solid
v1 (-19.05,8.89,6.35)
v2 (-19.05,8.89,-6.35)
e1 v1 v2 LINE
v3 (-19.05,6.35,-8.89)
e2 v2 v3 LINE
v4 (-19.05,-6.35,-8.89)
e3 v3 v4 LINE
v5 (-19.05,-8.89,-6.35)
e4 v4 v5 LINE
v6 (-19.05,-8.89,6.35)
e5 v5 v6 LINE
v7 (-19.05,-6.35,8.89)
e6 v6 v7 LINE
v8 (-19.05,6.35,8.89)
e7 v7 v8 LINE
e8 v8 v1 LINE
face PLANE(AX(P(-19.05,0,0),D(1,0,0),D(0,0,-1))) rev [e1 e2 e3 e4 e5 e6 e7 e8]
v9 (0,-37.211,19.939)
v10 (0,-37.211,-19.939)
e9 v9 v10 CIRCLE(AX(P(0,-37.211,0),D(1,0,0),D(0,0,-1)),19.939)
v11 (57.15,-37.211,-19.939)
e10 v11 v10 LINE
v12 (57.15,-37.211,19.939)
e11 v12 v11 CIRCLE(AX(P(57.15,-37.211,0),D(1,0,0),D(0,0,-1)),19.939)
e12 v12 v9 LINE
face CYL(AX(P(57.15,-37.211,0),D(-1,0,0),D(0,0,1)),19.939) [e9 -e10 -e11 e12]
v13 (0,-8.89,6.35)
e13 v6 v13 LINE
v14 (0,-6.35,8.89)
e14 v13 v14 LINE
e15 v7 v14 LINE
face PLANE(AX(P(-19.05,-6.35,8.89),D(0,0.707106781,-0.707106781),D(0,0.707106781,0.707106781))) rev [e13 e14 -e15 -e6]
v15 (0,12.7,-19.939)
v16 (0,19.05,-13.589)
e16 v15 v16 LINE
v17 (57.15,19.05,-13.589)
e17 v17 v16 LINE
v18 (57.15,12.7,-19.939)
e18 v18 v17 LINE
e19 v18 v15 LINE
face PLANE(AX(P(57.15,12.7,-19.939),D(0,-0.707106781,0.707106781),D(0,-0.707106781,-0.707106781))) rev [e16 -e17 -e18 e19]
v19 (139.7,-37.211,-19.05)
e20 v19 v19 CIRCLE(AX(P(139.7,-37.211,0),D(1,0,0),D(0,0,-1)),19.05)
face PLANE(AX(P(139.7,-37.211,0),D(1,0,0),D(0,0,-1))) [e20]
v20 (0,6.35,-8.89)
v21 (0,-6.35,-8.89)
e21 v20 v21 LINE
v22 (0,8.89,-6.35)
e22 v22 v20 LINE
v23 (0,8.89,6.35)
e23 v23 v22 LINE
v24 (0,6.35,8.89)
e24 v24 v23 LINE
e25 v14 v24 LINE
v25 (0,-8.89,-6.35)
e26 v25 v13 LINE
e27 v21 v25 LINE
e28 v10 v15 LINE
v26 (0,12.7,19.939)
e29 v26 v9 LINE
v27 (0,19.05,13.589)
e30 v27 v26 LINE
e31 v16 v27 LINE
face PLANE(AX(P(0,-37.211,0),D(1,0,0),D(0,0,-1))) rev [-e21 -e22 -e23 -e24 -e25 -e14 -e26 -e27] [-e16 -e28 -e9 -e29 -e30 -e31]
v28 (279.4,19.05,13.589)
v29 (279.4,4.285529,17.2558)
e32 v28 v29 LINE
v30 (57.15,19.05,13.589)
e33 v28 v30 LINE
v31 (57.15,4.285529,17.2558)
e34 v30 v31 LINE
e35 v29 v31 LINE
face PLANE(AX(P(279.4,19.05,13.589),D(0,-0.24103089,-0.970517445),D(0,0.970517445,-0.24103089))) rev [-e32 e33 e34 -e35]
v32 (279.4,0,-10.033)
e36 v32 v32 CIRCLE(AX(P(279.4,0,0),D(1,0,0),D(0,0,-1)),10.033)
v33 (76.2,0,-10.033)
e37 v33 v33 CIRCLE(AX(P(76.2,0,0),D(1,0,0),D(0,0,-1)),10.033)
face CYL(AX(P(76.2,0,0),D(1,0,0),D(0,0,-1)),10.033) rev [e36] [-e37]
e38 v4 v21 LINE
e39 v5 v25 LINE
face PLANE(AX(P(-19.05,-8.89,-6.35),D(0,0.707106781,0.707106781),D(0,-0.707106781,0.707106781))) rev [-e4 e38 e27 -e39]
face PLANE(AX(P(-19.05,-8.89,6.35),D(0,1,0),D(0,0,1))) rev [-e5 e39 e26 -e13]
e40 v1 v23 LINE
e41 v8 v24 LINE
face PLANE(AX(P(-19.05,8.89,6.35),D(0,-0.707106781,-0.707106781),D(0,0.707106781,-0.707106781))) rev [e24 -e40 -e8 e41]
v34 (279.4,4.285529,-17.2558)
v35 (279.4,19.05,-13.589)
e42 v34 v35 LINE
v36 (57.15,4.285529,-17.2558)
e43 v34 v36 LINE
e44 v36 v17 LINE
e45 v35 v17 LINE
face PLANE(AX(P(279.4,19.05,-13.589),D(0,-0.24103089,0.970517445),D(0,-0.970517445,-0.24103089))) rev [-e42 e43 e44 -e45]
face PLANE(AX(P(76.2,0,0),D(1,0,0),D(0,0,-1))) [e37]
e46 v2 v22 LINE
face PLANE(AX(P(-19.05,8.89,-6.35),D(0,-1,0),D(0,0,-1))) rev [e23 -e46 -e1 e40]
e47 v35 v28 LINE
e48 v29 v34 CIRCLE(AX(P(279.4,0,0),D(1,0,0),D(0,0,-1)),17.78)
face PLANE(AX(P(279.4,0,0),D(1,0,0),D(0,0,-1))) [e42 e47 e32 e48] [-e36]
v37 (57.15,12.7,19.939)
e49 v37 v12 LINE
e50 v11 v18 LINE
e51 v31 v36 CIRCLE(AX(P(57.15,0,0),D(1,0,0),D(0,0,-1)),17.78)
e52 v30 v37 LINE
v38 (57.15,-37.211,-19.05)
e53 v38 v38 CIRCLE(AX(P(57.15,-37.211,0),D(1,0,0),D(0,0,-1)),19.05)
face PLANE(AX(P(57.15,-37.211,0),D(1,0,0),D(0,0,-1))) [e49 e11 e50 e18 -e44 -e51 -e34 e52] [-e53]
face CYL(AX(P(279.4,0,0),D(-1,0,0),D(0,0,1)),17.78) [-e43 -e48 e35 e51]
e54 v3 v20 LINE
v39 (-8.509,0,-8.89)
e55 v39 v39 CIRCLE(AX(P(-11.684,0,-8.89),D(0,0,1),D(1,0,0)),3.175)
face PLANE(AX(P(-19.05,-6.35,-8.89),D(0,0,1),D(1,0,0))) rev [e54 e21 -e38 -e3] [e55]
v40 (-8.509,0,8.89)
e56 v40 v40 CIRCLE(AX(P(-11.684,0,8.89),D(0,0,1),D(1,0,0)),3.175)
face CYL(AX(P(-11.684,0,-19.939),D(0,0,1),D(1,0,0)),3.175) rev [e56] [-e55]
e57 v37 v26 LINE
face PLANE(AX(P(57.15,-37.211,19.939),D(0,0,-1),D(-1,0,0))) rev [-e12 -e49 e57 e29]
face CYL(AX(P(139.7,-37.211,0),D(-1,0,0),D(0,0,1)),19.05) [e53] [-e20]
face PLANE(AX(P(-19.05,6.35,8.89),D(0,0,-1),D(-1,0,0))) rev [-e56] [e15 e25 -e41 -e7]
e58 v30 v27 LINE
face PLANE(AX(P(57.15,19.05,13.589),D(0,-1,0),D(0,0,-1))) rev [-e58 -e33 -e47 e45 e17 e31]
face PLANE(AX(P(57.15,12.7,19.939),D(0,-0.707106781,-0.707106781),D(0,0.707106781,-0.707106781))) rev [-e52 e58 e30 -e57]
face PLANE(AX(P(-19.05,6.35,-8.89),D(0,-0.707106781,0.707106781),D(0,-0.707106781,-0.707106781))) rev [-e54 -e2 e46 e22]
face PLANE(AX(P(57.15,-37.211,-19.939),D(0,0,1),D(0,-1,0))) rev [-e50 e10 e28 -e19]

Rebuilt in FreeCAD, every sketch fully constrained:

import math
import FreeCAD as App
import Part
import Sketcher
from FreeCAD import Vector
Q = App.Units.Quantity

doc = App.newDocument("Part")
params = doc.addObject("Spreadsheet::Sheet", "Params")
for row, (alias, value) in enumerate([
    ("sketch1_radius", "0.785 in"),
    ("sketch1_height", "1.07 in"),
    ("sketch1_width", "1.965 in"),
    ("pad1_length", "2.25 in"),
    ("sketch2_diameter", "1.5 in"),
    ("pad2_length", "3.25 in"),
    ("sketch3_width", "0.5 in"),
    ("pad3_length", "0.75 in"),
    ("sketch4_diameter", "0.25 in"),
    ("sketch5_radius", "0.7 in"),
    ("sketch5_height", "1.07 in"),
    ("pad4_length", "8.75 in"),
    ("sketch6_diameter", "0.79 in"),
    ("pocket2_length", "8 in"),
], start=1):
    params.set(f"A{row}", alias)
    params.set(f"B{row}", "=" + value)
    params.setAlias(f"B{row}", alias)

body = doc.addObject("PartDesign::Body", "Body")

# Sketch on YZ plane
sketch1 = doc.addObject("Sketcher::SketchObject", "Sketch")
body.addObject(sketch1)
sketch1.AttachmentSupport = (doc.YZ_Plane, [""])
sketch1.MapMode = "FlatFace"
sketch1.addGeometry([
    Part.LineSegment(Vector(19.05, -13.589, 0), Vector(19.05, 13.589, 0)),  # 0
    Part.LineSegment(Vector(19.05, 13.589, 0), Vector(12.7, 19.939, 0)),  # 1
    Part.LineSegment(Vector(12.7, 19.939, 0), Vector(-37.211, 19.939, 0)),  # 2
    Part.ArcOfCircle(Part.Circle(Vector(-37.211, 0, 0), Vector(0, 0, 1), 19.939), math.radians(90), math.radians(270)),  # 3
    Part.LineSegment(Vector(-37.211, -19.939, 0), Vector(12.7, -19.939, 0)),  # 4
    Part.LineSegment(Vector(12.7, -19.939, 0), Vector(19.05, -13.589, 0)),  # 5
], False)
sketch1.addConstraint([
    Sketcher.Constraint("Coincident", 0, 2, 1, 1),
    Sketcher.Constraint("Coincident", 1, 2, 2, 1),
    Sketcher.Constraint("Tangent", 2, 2, 3, 1),
    Sketcher.Constraint("Tangent", 3, 2, 4, 1),
    Sketcher.Constraint("Coincident", 4, 2, 5, 1),
    Sketcher.Constraint("Coincident", 5, 2, 0, 1),
    Sketcher.Constraint("Vertical", 0),
    Sketcher.Constraint("Horizontal", 2),
    Sketcher.Constraint("Horizontal", 4),
    Sketcher.Constraint("Symmetric", 1, 2, 4, 2, -1),
    Sketcher.Constraint("Perpendicular", 1, 5),
    Sketcher.Constraint("Equal", 1, 5),
    Sketcher.Constraint("Radius", 3, Q("0.785 in")),
    Sketcher.Constraint("DistanceY", 0, 1, 0, 2, Q("1.07 in")),
    Sketcher.Constraint("DistanceX", -1, 1, 1, 2, Q("0.5 in")),
    Sketcher.Constraint("DistanceX", 2, 2, 2, 1, Q("1.965 in")),
])
sketch1.setExpression("Constraints[12]", "Params.sketch1_radius")
sketch1.setExpression("Constraints[13]", "Params.sketch1_height")
sketch1.setExpression("Constraints[15]", "Params.sketch1_width")
pad1 = doc.addObject("PartDesign::Pad", "Pad")
body.addObject(pad1)
pad1.Profile = sketch1
pad1.setExpression("Length", "Params.pad1_length")

# Sketch on YZ plane
sketch2 = doc.addObject("Sketcher::SketchObject", "Sketch001")
body.addObject(sketch2)
sketch2.AttachmentSupport = (doc.YZ_Plane, [""])
sketch2.MapMode = "FlatFace"
sketch2.AttachmentOffset = App.Placement(Vector(0, 0, 2.25 * 25.4), App.Rotation())
sketch2.addGeometry(Part.Circle(Vector(-37.211, 0, 0), Vector(0, 0, 1), 19.05), False)
sketch2.addConstraint([
    Sketcher.Constraint("PointOnObject", 0, 3, -1),
    Sketcher.Constraint("Diameter", 0, Q("1.5 in")),
    Sketcher.Constraint("DistanceX", 0, 3, -1, 1, Q("1.465 in")),
])
sketch2.setExpression("Constraints[1]", "Params.sketch2_diameter")
pad2 = doc.addObject("PartDesign::Pad", "Pad001")
body.addObject(pad2)
pad2.Profile = sketch2
pad2.setExpression("Length", "Params.pad2_length")

# Sketch on YZ plane
sketch3 = doc.addObject("Sketcher::SketchObject", "Sketch002")
body.addObject(sketch3)
sketch3.AttachmentSupport = (doc.YZ_Plane, [""])
sketch3.MapMode = "FlatFace"
sketch3.addGeometry([
    Part.LineSegment(Vector(8.89, 6.35, 0), Vector(8.89, -6.35, 0)),  # 0
    Part.LineSegment(Vector(8.89, -6.35, 0), Vector(6.35, -8.89, 0)),  # 1
    Part.LineSegment(Vector(6.35, -8.89, 0), Vector(-6.35, -8.89, 0)),  # 2
    Part.LineSegment(Vector(-6.35, -8.89, 0), Vector(-8.89, -6.35, 0)),  # 3
    Part.LineSegment(Vector(-8.89, -6.35, 0), Vector(-8.89, 6.35, 0)),  # 4
    Part.LineSegment(Vector(-8.89, 6.35, 0), Vector(-6.35, 8.89, 0)),  # 5
    Part.LineSegment(Vector(-6.35, 8.89, 0), Vector(6.35, 8.89, 0)),  # 6
    Part.LineSegment(Vector(6.35, 8.89, 0), Vector(8.89, 6.35, 0)),  # 7
], False)
sketch3.addConstraint([
    Sketcher.Constraint("Coincident", 0, 2, 1, 1),
    Sketcher.Constraint("Coincident", 1, 2, 2, 1),
    Sketcher.Constraint("Coincident", 2, 2, 3, 1),
    Sketcher.Constraint("Coincident", 3, 2, 4, 1),
    Sketcher.Constraint("Coincident", 4, 2, 5, 1),
    Sketcher.Constraint("Coincident", 5, 2, 6, 1),
    Sketcher.Constraint("Coincident", 6, 2, 7, 1),
    Sketcher.Constraint("Coincident", 7, 2, 0, 1),
    Sketcher.Constraint("Vertical", 0),
    Sketcher.Constraint("Horizontal", 2),
    Sketcher.Constraint("Vertical", 4),
    Sketcher.Constraint("Horizontal", 6),
    Sketcher.Constraint("Symmetric", 0, 2, 4, 2, -1, 1),
    Sketcher.Constraint("Symmetric", 1, 2, 5, 2, -1, 1),
    Sketcher.Constraint("Perpendicular", 1, 3),
    Sketcher.Constraint("Perpendicular", 5, 7),
    Sketcher.Constraint("Horizontal", 0, 2, 3, 2),
    Sketcher.Constraint("Horizontal", 4, 2, 7, 2),
    Sketcher.Constraint("Vertical", 2, 2, 5, 2),
    Sketcher.Constraint("Equal", 6, 0),
    Sketcher.Constraint("DistanceX", 2, 2, 2, 1, Q("0.5 in")),
    Sketcher.Constraint("DistanceX", 1, 2, 0, 2, Q("0.1 in")),
])
sketch3.setExpression("Constraints[20]", "Params.sketch3_width")
pad3 = doc.addObject("PartDesign::Pad", "Pad002")
body.addObject(pad3)
pad3.Profile = sketch3
pad3.setExpression("Length", "Params.pad3_length")
pad3.Reversed = True

# Sketch on XY plane
sketch4 = doc.addObject("Sketcher::SketchObject", "Sketch003")
body.addObject(sketch4)
sketch4.AttachmentSupport = (doc.XY_Plane, [""])
sketch4.MapMode = "FlatFace"
sketch4.AttachmentOffset = App.Placement(Vector(0, 0, 0.35 * 25.4), App.Rotation())
sketch4.addGeometry(Part.Circle(Vector(-11.684, 0, 0), Vector(0, 0, 1), 3.175), False)
sketch4.addConstraint([
    Sketcher.Constraint("PointOnObject", 0, 3, -1),
    Sketcher.Constraint("Diameter", 0, Q("0.25 in")),
    Sketcher.Constraint("DistanceX", 0, 3, -1, 1, Q("0.46 in")),
])
sketch4.setExpression("Constraints[1]", "Params.sketch4_diameter")
pocket1 = doc.addObject("PartDesign::Pocket", "Pocket")
body.addObject(pocket1)
pocket1.Profile = sketch4
pocket1.Type = "ThroughAll"

# Sketch on YZ plane
sketch5 = doc.addObject("Sketcher::SketchObject", "Sketch004")
body.addObject(sketch5)
sketch5.AttachmentSupport = (doc.YZ_Plane, [""])
sketch5.MapMode = "FlatFace"
sketch5.AttachmentOffset = App.Placement(Vector(0, 0, 2.25 * 25.4), App.Rotation())
sketch5.addGeometry([
    Part.LineSegment(Vector(19.05, -13.589, 0), Vector(19.05, 13.589, 0)),
    Part.LineSegment(Vector(19.05, 13.589, 0), Vector(4.285529, 17.2558, 0)),
    Part.ArcOfCircle(Part.Circle(Vector(0, 0, 0), Vector(0, 0, 1), 17.78), math.radians(76.052608), math.radians(283.947392)),
    Part.LineSegment(Vector(4.285529, -17.2558, 0), Vector(19.05, -13.589, 0)),
], False)
sketch5.addConstraint([
    Sketcher.Constraint("Coincident", 0, 2, 1, 1),
    Sketcher.Constraint("Tangent", 1, 2, 2, 1),
    Sketcher.Constraint("Tangent", 2, 2, 3, 1),
    Sketcher.Constraint("Coincident", 3, 2, 0, 1),
    Sketcher.Constraint("Vertical", 0),
    Sketcher.Constraint("Coincident", 2, 3, -1, 1),
    Sketcher.Constraint("Vertical", 1, 2, 2, 2),
    Sketcher.Constraint("Radius", 2, Q("0.7 in")),
    Sketcher.Constraint("DistanceY", 0, 1, 0, 2, Q("1.07 in")),
    Sketcher.Constraint("DistanceX", -1, 1, 0, 2, Q("0.75 in")),
])
sketch5.setExpression("Constraints[7]", "Params.sketch5_radius")
sketch5.setExpression("Constraints[8]", "Params.sketch5_height")
pad4 = doc.addObject("PartDesign::Pad", "Pad003")
body.addObject(pad4)
pad4.Profile = sketch5
pad4.setExpression("Length", "Params.pad4_length")

# Sketch on YZ plane
sketch6 = doc.addObject("Sketcher::SketchObject", "Sketch005")
body.addObject(sketch6)
sketch6.AttachmentSupport = (doc.YZ_Plane, [""])
sketch6.MapMode = "FlatFace"
sketch6.AttachmentOffset = App.Placement(Vector(0, 0, 11 * 25.4), App.Rotation())
sketch6.addGeometry(Part.Circle(Vector(0, 0, 0), Vector(0, 0, 1), 10.033), False)
sketch6.addConstraint([
    Sketcher.Constraint("Coincident", 0, 3, -1, 1),
    Sketcher.Constraint("Diameter", 0, Q("0.79 in")),
])
sketch6.setExpression("Constraints[1]", "Params.sketch6_diameter")
pocket2 = doc.addObject("PartDesign::Pocket", "Pocket001")
body.addObject(pocket2)
pocket2.Profile = sketch6
pocket2.setExpression("Length", "Params.pocket2_length")

doc.recompute()
